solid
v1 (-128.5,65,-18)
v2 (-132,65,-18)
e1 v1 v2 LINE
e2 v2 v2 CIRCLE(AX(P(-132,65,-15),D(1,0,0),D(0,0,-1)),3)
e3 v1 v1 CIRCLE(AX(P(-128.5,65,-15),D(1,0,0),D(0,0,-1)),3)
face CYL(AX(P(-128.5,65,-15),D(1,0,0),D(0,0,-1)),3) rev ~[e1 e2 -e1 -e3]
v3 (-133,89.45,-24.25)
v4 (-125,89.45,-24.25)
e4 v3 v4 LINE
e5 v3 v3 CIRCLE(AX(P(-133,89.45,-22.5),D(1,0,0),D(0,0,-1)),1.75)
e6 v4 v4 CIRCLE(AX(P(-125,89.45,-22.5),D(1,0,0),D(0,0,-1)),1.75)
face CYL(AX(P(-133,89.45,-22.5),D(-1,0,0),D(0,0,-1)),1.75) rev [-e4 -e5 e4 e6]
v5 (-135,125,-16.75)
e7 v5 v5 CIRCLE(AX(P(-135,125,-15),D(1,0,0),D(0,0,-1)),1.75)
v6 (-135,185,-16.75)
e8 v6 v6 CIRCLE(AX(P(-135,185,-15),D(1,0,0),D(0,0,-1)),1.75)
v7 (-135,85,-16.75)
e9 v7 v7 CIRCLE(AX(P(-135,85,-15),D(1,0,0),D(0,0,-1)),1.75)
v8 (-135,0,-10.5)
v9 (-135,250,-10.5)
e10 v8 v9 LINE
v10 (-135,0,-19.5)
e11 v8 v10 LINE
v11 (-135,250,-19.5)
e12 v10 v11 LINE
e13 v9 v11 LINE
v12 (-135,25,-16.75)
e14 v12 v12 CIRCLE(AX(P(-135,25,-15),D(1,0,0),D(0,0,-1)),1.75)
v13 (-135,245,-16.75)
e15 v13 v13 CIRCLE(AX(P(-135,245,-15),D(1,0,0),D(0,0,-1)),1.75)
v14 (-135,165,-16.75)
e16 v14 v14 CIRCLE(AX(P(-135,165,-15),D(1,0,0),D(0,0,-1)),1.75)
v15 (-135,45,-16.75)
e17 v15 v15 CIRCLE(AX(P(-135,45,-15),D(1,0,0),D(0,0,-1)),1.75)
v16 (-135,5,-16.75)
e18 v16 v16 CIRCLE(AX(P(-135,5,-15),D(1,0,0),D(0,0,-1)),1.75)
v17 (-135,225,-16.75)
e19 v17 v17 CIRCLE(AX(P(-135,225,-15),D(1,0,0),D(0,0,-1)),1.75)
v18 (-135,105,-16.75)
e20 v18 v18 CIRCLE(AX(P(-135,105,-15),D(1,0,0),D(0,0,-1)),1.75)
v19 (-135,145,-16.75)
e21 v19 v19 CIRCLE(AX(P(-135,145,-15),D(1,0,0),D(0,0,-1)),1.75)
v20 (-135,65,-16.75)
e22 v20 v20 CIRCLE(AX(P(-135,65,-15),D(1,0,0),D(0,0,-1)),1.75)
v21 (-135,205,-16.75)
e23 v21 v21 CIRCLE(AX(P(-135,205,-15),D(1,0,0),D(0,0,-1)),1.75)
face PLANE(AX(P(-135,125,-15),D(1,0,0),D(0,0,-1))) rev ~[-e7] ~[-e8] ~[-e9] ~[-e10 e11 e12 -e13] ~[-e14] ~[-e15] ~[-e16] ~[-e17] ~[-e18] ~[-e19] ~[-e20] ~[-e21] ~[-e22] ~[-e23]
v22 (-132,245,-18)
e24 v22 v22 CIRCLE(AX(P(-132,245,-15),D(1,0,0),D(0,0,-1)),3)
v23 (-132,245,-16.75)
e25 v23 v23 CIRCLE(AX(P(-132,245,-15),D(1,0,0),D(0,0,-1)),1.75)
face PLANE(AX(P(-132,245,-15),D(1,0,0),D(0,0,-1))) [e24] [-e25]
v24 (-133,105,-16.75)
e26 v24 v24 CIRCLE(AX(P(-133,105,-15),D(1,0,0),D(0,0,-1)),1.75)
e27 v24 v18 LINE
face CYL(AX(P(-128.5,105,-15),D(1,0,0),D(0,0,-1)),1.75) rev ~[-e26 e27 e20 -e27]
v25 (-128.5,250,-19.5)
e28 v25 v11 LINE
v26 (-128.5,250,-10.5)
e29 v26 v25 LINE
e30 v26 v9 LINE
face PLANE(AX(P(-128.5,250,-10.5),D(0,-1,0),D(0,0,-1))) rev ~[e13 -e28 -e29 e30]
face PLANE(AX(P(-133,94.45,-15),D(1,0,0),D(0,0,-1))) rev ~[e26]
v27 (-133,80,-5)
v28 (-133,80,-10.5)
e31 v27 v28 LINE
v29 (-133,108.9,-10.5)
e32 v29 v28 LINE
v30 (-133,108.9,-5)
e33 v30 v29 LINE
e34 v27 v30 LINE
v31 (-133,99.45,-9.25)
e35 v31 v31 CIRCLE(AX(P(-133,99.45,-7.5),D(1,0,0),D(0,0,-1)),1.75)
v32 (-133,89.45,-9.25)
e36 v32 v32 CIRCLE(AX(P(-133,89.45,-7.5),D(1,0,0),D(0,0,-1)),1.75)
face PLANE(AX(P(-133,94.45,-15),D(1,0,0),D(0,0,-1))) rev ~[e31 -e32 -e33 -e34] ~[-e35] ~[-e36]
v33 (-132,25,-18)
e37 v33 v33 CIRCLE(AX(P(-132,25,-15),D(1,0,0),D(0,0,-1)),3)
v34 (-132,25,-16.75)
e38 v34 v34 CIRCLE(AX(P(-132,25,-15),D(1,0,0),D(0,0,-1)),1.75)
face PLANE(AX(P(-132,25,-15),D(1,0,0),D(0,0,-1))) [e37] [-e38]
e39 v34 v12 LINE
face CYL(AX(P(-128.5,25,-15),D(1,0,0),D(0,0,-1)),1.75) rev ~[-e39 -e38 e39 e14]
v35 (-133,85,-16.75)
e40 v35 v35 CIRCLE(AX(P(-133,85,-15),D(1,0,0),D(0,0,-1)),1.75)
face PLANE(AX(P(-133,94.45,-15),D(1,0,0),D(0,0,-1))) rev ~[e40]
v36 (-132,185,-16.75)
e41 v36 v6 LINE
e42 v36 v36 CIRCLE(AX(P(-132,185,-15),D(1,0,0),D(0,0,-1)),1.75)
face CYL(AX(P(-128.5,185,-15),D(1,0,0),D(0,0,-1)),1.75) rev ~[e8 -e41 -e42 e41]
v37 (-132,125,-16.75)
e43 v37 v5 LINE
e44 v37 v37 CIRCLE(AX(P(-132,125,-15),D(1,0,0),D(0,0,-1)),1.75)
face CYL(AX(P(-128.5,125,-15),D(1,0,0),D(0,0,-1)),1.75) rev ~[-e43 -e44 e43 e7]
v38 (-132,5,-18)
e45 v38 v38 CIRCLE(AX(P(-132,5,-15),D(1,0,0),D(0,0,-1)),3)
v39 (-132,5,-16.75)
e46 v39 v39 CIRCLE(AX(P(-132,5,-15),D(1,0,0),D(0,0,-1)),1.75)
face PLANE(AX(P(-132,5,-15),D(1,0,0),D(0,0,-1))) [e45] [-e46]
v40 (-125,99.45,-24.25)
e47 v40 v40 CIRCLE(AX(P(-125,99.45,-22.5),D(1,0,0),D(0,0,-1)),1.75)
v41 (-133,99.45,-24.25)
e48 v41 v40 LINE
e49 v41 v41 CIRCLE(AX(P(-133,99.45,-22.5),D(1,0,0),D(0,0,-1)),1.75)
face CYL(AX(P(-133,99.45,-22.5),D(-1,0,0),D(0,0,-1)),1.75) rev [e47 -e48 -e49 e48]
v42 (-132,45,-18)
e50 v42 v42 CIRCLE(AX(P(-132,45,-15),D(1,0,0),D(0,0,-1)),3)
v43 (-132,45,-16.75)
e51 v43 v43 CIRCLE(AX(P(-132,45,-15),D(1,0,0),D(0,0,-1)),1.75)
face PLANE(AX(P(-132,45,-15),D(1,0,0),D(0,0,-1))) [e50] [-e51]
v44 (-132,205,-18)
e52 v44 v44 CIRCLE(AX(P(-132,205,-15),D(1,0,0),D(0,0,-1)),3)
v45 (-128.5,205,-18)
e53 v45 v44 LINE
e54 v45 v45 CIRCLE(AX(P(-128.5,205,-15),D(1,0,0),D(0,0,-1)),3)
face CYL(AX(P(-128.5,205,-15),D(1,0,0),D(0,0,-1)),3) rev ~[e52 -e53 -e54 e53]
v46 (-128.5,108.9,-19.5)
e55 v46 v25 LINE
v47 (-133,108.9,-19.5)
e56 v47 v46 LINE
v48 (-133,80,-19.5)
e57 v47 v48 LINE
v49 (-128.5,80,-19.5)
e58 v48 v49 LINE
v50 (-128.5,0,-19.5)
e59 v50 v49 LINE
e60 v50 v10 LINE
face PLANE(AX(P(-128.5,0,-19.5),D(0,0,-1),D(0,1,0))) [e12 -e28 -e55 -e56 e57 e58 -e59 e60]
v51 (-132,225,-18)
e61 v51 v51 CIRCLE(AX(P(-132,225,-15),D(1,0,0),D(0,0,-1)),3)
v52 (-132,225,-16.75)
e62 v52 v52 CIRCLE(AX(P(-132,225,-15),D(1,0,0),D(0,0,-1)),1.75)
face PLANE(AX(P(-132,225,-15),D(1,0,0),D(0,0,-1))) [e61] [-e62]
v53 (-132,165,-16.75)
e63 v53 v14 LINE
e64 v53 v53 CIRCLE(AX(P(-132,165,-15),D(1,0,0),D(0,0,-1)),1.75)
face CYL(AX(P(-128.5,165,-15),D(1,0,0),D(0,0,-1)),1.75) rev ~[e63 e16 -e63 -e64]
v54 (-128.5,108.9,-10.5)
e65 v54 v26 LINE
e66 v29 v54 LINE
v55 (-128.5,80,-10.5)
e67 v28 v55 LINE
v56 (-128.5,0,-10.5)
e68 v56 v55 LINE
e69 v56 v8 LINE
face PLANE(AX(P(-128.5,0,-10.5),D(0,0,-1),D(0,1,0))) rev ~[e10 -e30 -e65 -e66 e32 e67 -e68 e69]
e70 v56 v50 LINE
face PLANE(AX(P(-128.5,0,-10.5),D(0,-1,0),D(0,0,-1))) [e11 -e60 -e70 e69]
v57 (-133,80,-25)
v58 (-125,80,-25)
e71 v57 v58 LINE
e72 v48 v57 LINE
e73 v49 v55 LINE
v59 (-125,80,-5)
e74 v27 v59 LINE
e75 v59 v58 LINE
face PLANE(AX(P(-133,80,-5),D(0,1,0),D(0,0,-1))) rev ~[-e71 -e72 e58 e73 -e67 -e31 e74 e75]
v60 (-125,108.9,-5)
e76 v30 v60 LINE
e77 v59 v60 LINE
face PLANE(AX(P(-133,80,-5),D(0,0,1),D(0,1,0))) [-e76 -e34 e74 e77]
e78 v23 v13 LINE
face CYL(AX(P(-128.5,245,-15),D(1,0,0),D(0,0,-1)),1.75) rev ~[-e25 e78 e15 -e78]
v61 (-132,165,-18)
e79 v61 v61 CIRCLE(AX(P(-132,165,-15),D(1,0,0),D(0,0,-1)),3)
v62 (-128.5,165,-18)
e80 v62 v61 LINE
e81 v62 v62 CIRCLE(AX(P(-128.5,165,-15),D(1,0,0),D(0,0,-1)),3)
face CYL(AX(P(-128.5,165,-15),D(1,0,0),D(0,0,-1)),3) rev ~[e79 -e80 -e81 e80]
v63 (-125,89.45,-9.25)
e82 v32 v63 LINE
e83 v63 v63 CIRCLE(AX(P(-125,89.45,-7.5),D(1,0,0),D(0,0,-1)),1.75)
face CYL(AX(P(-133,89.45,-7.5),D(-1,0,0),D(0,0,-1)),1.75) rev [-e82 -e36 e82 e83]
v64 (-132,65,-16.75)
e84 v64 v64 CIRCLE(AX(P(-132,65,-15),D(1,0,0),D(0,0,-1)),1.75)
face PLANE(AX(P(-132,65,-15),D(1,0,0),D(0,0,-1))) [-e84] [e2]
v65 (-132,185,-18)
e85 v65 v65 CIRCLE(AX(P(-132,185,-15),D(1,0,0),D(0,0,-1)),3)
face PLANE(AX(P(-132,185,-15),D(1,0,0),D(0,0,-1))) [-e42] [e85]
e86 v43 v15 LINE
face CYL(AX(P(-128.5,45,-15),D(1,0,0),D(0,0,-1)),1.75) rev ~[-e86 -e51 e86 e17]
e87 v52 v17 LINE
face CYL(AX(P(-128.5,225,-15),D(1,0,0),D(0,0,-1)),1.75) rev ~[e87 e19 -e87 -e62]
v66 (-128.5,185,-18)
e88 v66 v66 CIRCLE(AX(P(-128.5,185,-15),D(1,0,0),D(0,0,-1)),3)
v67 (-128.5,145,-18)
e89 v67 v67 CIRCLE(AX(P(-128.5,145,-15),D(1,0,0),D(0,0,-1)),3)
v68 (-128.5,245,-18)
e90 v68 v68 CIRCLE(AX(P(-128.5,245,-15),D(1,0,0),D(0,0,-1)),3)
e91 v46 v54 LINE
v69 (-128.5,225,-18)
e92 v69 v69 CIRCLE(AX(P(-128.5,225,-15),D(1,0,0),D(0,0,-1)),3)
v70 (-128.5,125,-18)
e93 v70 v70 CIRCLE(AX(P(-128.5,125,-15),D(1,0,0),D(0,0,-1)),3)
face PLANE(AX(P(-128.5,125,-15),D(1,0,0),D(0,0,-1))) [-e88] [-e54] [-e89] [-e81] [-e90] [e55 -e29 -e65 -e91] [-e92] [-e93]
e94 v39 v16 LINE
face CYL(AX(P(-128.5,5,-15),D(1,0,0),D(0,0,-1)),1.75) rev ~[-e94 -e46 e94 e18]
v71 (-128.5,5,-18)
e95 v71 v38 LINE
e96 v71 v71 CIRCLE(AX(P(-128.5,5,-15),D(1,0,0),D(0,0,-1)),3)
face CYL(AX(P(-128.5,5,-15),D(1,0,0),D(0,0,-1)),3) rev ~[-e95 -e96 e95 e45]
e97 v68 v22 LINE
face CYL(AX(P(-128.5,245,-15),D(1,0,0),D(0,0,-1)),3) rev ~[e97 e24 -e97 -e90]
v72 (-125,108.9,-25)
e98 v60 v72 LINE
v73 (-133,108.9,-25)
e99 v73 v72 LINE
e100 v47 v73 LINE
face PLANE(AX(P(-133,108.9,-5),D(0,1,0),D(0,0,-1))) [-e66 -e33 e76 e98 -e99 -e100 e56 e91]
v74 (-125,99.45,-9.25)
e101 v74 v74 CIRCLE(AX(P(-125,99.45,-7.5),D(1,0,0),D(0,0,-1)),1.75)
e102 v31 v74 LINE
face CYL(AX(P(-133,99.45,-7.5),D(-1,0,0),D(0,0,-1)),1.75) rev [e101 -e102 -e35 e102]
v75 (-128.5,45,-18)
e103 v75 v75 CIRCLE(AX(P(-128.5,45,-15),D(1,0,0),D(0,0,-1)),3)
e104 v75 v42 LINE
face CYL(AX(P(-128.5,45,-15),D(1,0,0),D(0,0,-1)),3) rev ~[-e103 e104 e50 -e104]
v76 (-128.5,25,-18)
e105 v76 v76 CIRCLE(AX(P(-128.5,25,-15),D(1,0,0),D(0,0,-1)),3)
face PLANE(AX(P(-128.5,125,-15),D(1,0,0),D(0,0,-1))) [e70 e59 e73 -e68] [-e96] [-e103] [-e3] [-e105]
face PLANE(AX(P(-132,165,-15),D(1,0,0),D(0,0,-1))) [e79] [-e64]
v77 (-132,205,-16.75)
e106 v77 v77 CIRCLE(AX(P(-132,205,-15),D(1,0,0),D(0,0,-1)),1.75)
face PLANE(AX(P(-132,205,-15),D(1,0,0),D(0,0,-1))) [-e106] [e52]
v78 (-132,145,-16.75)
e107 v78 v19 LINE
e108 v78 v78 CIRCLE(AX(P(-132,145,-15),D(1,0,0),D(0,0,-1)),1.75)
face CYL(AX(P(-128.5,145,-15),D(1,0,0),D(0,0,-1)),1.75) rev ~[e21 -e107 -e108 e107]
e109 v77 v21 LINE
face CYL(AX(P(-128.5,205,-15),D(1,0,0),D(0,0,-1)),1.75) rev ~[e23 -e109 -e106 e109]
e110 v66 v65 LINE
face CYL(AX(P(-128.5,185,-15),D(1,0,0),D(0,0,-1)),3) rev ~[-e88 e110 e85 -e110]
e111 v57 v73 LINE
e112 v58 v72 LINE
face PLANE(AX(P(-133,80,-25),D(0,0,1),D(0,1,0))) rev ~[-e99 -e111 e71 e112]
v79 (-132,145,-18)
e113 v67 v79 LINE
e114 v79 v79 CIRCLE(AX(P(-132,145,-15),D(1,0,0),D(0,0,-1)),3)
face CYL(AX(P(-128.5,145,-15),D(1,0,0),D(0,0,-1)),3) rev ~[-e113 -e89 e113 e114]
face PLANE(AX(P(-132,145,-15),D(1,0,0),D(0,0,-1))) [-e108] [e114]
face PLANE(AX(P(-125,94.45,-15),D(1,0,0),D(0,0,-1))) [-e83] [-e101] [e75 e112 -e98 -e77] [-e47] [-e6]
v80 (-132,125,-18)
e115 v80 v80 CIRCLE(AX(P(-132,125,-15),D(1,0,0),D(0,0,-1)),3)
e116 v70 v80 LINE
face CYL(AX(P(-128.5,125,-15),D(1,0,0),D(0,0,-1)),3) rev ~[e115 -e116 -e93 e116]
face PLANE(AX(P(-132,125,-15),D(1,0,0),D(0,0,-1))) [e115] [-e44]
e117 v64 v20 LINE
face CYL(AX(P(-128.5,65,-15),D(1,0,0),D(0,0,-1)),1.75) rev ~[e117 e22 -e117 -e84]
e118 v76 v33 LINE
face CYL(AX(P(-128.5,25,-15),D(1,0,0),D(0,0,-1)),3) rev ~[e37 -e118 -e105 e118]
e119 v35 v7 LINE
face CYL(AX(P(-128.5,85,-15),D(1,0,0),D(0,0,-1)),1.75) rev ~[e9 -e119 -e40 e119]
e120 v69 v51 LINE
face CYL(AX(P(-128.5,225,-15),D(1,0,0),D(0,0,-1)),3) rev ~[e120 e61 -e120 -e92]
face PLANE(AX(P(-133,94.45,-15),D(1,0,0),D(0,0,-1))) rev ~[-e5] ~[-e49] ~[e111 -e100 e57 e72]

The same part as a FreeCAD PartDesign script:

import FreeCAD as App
import Part
import Sketcher
from FreeCAD import Vector
Q = App.Units.Quantity

doc = App.newDocument("Part")
body = doc.addObject("PartDesign::Body", "Body")

# Sketch on XY plane
sketch1 = body.newObject("Sketcher::SketchObject", "Sketch")
sketch1.AttachmentSupport = (doc.getObject("XY_Plane"), [""])
sketch1.MapMode = "FlatFace"
sketch1.addGeometry([
    Part.LineSegment(Vector(-4.5, 250, 0), Vector(-4.5, 0, 0)),
    Part.LineSegment(Vector(-4.5, 0, 0), Vector(4.5, 0, 0)),
    Part.LineSegment(Vector(4.5, 0, 0), Vector(4.5, 250, 0)),
    Part.LineSegment(Vector(4.5, 250, 0), Vector(-4.5, 250, 0)),
], False)
sketch1.addConstraint([
    Sketcher.Constraint("Coincident", 0, 2, 1, 1),
    Sketcher.Constraint("Coincident", 1, 2, 2, 1),
    Sketcher.Constraint("Coincident", 2, 2, 3, 1),
    Sketcher.Constraint("Coincident", 3, 2, 0, 1),
    Sketcher.Constraint("Vertical", 0),
    Sketcher.Constraint("Horizontal", 1),
    Sketcher.Constraint("Vertical", 2),
    Sketcher.Constraint("Horizontal", 3),
    Sketcher.Constraint("Symmetric", 0, 2, 1, 2, -1, 1),
    Sketcher.Constraint("DistanceX", 1, 1, 1, 2, Q("9 mm")),
    Sketcher.Constraint("DistanceY", 0, 2, 0, 1, Q("250 mm")),
])
pad1 = body.newObject("PartDesign::Pad", "Pad")
pad1.Profile = sketch1
pad1.Length = 6.5
pad1.Reversed = True

# Sketch on XY plane
sketch2 = body.newObject("Sketcher::SketchObject", "Sketch001")
sketch2.AttachmentSupport = (doc.getObject("XY_Plane"), [""])
sketch2.MapMode = "FlatFace"
sketch2.addGeometry(Part.Circle(Vector(0, 5, 0), Vector(0, 0, 1), 1.75), False)
sketch2.addConstraint([
    Sketcher.Constraint("PointOnObject", 0, 3, -2),
    Sketcher.Constraint("Diameter", 0, Q("3.5 mm")),
    Sketcher.Constraint("DistanceY", -1, 1, 0, 3, Q("5 mm")),
])
pocket1 = body.newObject("PartDesign::Pocket", "Pocket")
pocket1.Profile = sketch2
pocket1.Length = 6.5
doc.recompute()

linearpattern = body.newObject("PartDesign::LinearPattern", "LinearPattern")
linearpattern.Originals = [pocket1]
linearpattern.Direction = (doc.getObject("Y_Axis"), [""])
linearpattern.Mode = "offset"
linearpattern.Offset = 20
linearpattern.Occurrences = 13
body.Tip = linearpattern

# Sketch on XY plane
sketch3 = body.newObject("Sketcher::SketchObject", "Sketch002")
sketch3.AttachmentSupport = (doc.getObject("XY_Plane"), [""])
sketch3.MapMode = "FlatFace"
sketch3.addGeometry(Part.Circle(Vector(0, 5, 0), Vector(0, 0, 1), 3), False)
sketch3.addConstraint([
    Sketcher.Constraint("PointOnObject", 0, 3, -2),
    Sketcher.Constraint("Diameter", 0, Q("6 mm")),
    Sketcher.Constraint("DistanceY", -1, 1, 0, 3, Q("5 mm")),
])
pocket2 = body.newObject("PartDesign::Pocket", "Pocket001")
pocket2.Profile = sketch3
pocket2.Length = 3.5
doc.recompute()

linearpattern2 = body.newObject("PartDesign::LinearPattern", "LinearPattern001")
linearpattern2.Originals = [pocket2]
linearpattern2.Direction = (doc.getObject("Y_Axis"), [""])
linearpattern2.Mode = "offset"
linearpattern2.Offset = 20
linearpattern2.Occurrences = 13
body.Tip = linearpattern2

# Sketch on XY plane
sketch4 = body.newObject("Sketcher::SketchObject", "Sketch003")
sketch4.AttachmentSupport = (doc.getObject("XY_Plane"), [""])
sketch4.MapMode = "FlatFace"
sketch4.AttachmentOffset = App.Placement(Vector(0, 0, -4.5), App.Rotation())
sketch4.addGeometry([
    Part.LineSegment(Vector(-10, 108.9, 0), Vector(-10, 80, 0)),  # 0
    Part.LineSegment(Vector(-10, 80, 0), Vector(10, 80, 0)),  # 1
    Part.LineSegment(Vector(10, 80, 0), Vector(10, 108.9, 0)),  # 2
    Part.LineSegment(Vector(10, 108.9, 0), Vector(-10, 108.9, 0)),  # 3
    Part.Circle(Vector(-7.5, 89.45, 0), Vector(0, 0, 1), 1.75),  # 4
    Part.Circle(Vector(7.5, 89.45, 0), Vector(0, 0, 1), 1.75),  # 5
    Part.Circle(Vector(-7.5, 99.45, 0), Vector(0, 0, 1), 1.75),  # 6
    Part.Circle(Vector(7.5, 99.45, 0), Vector(0, 0, 1), 1.75),  # 7
], False)
sketch4.addConstraint([
    Sketcher.Constraint("Coincident", 0, 2, 1, 1),
    Sketcher.Constraint("Coincident", 1, 2, 2, 1),
    Sketcher.Constraint("Coincident", 2, 2, 3, 1),
    Sketcher.Constraint("Coincident", 3, 2, 0, 1),
    Sketcher.Constraint("Vertical", 0),
    Sketcher.Constraint("Horizontal", 1),
    Sketcher.Constraint("Vertical", 2),
    Sketcher.Constraint("Horizontal", 3),
    Sketcher.Constraint("Equal", 4, 5),
    Sketcher.Constraint("Equal", 5, 6),
    Sketcher.Constraint("Equal", 6, 7),
    Sketcher.Constraint("Symmetric", 4, 3, 5, 3, -2),
    Sketcher.Constraint("Symmetric", 6, 3, 7, 3, -2),
    Sketcher.Constraint("Vertical", 4, 3, 6, 3),
    Sketcher.Constraint("Diameter", 4, Q("3.5 mm")),
    Sketcher.Constraint("DistanceX", 1, 1, 1, 2, Q("20 mm")),
    Sketcher.Constraint("DistanceY", 0, 2, 0, 1, Q("28.9 mm")),
    Sketcher.Constraint("DistanceX", 0, 2, -1, 1, Q("10 mm")),
    Sketcher.Constraint("DistanceY", -1, 1, 0, 2, Q("80 mm")),
    Sketcher.Constraint("DistanceX", 4, 3, 5, 3, Q("15 mm")),
    Sketcher.Constraint("DistanceY", 4, 3, 6, 3, Q("10 mm")),
    Sketcher.Constraint("DistanceY", -1, 1, 4, 3, Q("89.45 mm")),
])
pad2 = body.newObject("PartDesign::Pad", "Pad001")
pad2.Profile = sketch4
pad2.Length = 8
body2 = doc.addObject("PartDesign::Body", "Body001")
doc.recompute()

body.Placement = App.Placement(Vector(-128.5, 0, -15), App.Rotation(Vector(0, 1, 0), 90))
boolean = body2.newObject("PartDesign::Boolean", "Boolean")
boolean.Type = "Fuse"
boolean.addObjects([body])

doc.recompute()
